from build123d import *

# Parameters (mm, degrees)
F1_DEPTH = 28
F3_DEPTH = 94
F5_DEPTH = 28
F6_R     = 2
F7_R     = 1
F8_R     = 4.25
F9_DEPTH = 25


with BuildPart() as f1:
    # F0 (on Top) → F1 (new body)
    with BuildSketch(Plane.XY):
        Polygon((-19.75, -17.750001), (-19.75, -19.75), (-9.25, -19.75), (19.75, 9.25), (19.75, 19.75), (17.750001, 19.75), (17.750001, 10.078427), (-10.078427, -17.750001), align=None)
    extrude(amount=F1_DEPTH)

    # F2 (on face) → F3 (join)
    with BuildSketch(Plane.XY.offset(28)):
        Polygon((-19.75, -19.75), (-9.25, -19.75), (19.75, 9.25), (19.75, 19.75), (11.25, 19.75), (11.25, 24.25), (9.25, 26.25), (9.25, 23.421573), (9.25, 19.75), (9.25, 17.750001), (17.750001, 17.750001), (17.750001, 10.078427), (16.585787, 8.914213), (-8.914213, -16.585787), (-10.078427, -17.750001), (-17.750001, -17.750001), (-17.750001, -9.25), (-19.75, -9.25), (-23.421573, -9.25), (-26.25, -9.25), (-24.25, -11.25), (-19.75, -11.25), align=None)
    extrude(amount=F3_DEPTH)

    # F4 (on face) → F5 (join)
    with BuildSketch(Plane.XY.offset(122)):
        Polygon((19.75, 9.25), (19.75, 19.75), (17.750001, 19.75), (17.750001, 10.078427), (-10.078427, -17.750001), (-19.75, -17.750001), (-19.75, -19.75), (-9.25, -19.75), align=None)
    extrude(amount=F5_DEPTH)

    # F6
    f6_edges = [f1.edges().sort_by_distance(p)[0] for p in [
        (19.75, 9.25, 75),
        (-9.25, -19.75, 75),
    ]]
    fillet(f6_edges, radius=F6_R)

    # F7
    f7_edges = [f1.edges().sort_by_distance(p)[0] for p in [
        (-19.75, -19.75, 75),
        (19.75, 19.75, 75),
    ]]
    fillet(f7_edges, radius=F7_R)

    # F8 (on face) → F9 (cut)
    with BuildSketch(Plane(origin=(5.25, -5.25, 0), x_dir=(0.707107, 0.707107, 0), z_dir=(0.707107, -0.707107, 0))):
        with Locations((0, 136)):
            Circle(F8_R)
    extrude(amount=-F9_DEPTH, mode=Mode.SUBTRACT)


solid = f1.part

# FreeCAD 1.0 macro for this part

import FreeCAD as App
import Part
import Sketcher

V = App.Vector


def edges_at(feature, points):
    """Names of the edges that pass closest to the given points."""
    edges = feature.Shape.Edges
    near = lambda p: min(range(len(edges)), key=lambda i: edges[i].distToShape(Part.Vertex(*p))[0])
    return sorted({f"Edge{near(p) + 1}" for p in points})

doc = App.newDocument("Part")
body = doc.addObject("PartDesign::Body", "Body")

# Sketch on XY plane
sketch1 = body.newObject("Sketcher::SketchObject", "Sketch")
sketch1.AttachmentSupport = (doc.getObject("XY_Plane"), [""])
sketch1.MapMode = "FlatFace"
sketch1.addGeometry(Part.LineSegment(V(-19.8, -17.8, 0), V(-19.8, -19.8, 0)), False)
sketch1.addGeometry(Part.LineSegment(V(-19.8, -19.8, 0), V(-9.2, -19.8, 0)), False)
sketch1.addGeometry(Part.LineSegment(V(-9.2, -19.8, 0), V(19.8, 9.2, 0)), False)
sketch1.addGeometry(Part.LineSegment(V(19.8, 9.2, 0), V(19.8, 19.8, 0)), False)
sketch1.addGeometry(Part.LineSegment(V(19.8, 19.8, 0), V(17.8, 19.8, 0)), False)
sketch1.addGeometry(Part.LineSegment(V(17.8, 19.8, 0), V(17.8, 10.1, 0)), False)
sketch1.addGeometry(Part.LineSegment(V(17.8, 10.1, 0), V(-10.1, -17.8, 0)), False)
sketch1.addGeometry(Part.LineSegment(V(-10.1, -17.8, 0), V(-19.8, -17.8, 0)), False)
sketch1.addConstraint(Sketcher.Constraint("Coincident", 0, 2, 1, 1))
sketch1.addConstraint(Sketcher.Constraint("Coincident", 1, 2, 2, 1))
sketch1.addConstraint(Sketcher.Constraint("Coincident", 2, 2, 3, 1))
sketch1.addConstraint(Sketcher.Constraint("Coincident", 3, 2, 4, 1))
sketch1.addConstraint(Sketcher.Constraint("Coincident", 4, 2, 5, 1))
sketch1.addConstraint(Sketcher.Constraint("Coincident", 5, 2, 6, 1))
sketch1.addConstraint(Sketcher.Constraint("Coincident", 6, 2, 7, 1))
sketch1.addConstraint(Sketcher.Constraint("Coincident", 7, 2, 0, 1))
sketch1.addConstraint(Sketcher.Constraint("Vertical", 0))
sketch1.addConstraint(Sketcher.Constraint("Horizontal", 1))
sketch1.addConstraint(Sketcher.Constraint("Vertical", 3))
sketch1.addConstraint(Sketcher.Constraint("Horizontal", 4))
sketch1.addConstraint(Sketcher.Constraint("Vertical", 5))
sketch1.addConstraint(Sketcher.Constraint("Horizontal", 7))
sketch1.addConstraint(Sketcher.Constraint("Symmetric", 0, 2, 3, 2, -1, 1))
sketch1.addConstraint(Sketcher.Constraint("Parallel", 2, 6))
sketch1.addConstraint(Sketcher.Constraint("Equal", 4, 0))
sketch1.addConstraint(Sketcher.Constraint("Equal", 1, 3))
sketch1.addConstraint(Sketcher.Constraint("Equal", 7, 5))
sketch1.addConstraint(Sketcher.Constraint("DistanceX", 4, 2, 4, 1, 1.999999))
sketch1.addConstraint(Sketcher.Constraint("DistanceX", 1, 1, 1, 2, 10.5))
sketch1.addConstraint(Sketcher.Constraint("DistanceX", 1, 2, 2, 2, 29.0))
sketch1.addConstraint(Sketcher.Constraint("Distance", 6, 39.35534))
pad1 = body.newObject("PartDesign::Pad", "Pad")
pad1.Profile = sketch1
pad1.Length = 28

# Sketch on XY plane
sketch2 = body.newObject("Sketcher::SketchObject", "Sketch001")
sketch2.AttachmentSupport = (doc.getObject("XY_Plane"), [""])
sketch2.MapMode = "FlatFace"
sketch2.AttachmentOffset = App.Placement(V(0, 0, 28), App.Rotation())
sketch2.addGeometry(Part.LineSegment(V(-19.8, -19.8, 0), V(-9.2, -19.8, 0)), False)
sketch2.addGeometry(Part.LineSegment(V(-9.2, -19.8, 0), V(19.8, 9.2, 0)), False)
sketch2.addGeometry(Part.LineSegment(V(19.8, 9.2, 0), V(19.8, 19.8, 0)), False)
sketch2.addGeometry(Part.LineSegment(V(19.8, 19.8, 0), V(11.2, 19.8, 0)), False)
sketch2.addGeometry(Part.LineSegment(V(11.2, 19.8, 0), V(11.2, 24.2, 0)), False)
sketch2.addGeometry(Part.LineSegment(V(11.2, 24.2, 0), V(9.2, 26.2, 0)), False)
sketch2.addGeometry(Part.LineSegment(V(9.2, 26.2, 0), V(9.2, 17.8, 0)), False)
sketch2.addGeometry(Part.LineSegment(V(9.2, 17.8, 0), V(17.8, 17.8, 0)), False)
sketch2.addGeometry(Part.LineSegment(V(17.8, 17.8, 0), V(17.8, 10.1, 0)), False)
sketch2.addGeometry(Part.LineSegment(V(17.8, 10.1, 0), V(-10.1, -17.8, 0)), False)
sketch2.addGeometry(Part.LineSegment(V(-10.1, -17.8, 0), V(-17.8, -17.8, 0)), False)
sketch2.addGeometry(Part.LineSegment(V(-17.8, -17.8, 0), V(-17.8, -9.2, 0)), False)
sketch2.addGeometry(Part.LineSegment(V(-17.8, -9.2, 0), V(-26.2, -9.2, 0)), False)
sketch2.addGeometry(Part.LineSegment(V(-26.2, -9.2, 0), V(-24.2, -11.2, 0)), False)
sketch2.addGeometry(Part.LineSegment(V(-24.2, -11.2, 0), V(-19.8, -11.2, 0)), False)
sketch2.addGeometry(Part.LineSegment(V(-19.8, -11.2, 0), V(-19.8, -19.8, 0)), False)
sketch2.addConstraint(Sketcher.Constraint("Coincident", 0, 2, 1, 1))
sketch2.addConstraint(Sketcher.Constraint("Coincident", 1, 2, 2, 1))
sketch2.addConstraint(Sketcher.Constraint("Coincident", 2, 2, 3, 1))
sketch2.addConstraint(Sketcher.Constraint("Coincident", 3, 2, 4, 1))
sketch2.addConstraint(Sketcher.Constraint("Coincident", 4, 2, 5, 1))
sketch2.addConstraint(Sketcher.Constraint("Coincident", 5, 2, 6, 1))
sketch2.addConstraint(Sketcher.Constraint("Coincident", 6, 2, 7, 1))
sketch2.addConstraint(Sketcher.Constraint("Coincident", 7, 2, 8, 1))
sketch2.addConstraint(Sketcher.Constraint("Coincident", 8, 2, 9, 1))
sketch2.addConstraint(Sketcher.Constraint("Coincident", 9, 2, 10, 1))
sketch2.addConstraint(Sketcher.Constraint("Coincident", 10, 2, 11, 1))
sketch2.addConstraint(Sketcher.Constraint("Coincident", 11, 2, 12, 1))
sketch2.addConstraint(Sketcher.Constraint("Coincident", 12, 2, 13, 1))
sketch2.addConstraint(Sketcher.Constraint("Coincident", 13, 2, 14, 1))
sketch2.addConstraint(Sketcher.Constraint("Coincident", 14, 2, 15, 1))
sketch2.addConstraint(Sketcher.Constraint("Coincident", 15, 2, 0, 1))
sketch2.addConstraint(Sketcher.Constraint("Horizontal", 0))
sketch2.addConstraint(Sketcher.Constraint("Vertical", 2))
sketch2.addConstraint(Sketcher.Constraint("Horizontal", 3))
sketch2.addConstraint(Sketcher.Constraint("Vertical", 4))
sketch2.addConstraint(Sketcher.Constraint("Vertical", 6))
sketch2.addConstraint(Sketcher.Constraint("Horizontal", 7))
sketch2.addConstraint(Sketcher.Constraint("Vertical", 8))
sketch2.addConstraint(Sketcher.Constraint("Horizontal", 10))
sketch2.addConstraint(Sketcher.Constraint("Vertical", 11))
sketch2.addConstraint(Sketcher.Constraint("Horizontal", 12))
sketch2.addConstraint(Sketcher.Constraint("Horizontal", 14))
sketch2.addConstraint(Sketcher.Constraint("Vertical", 15))
sketch2.addConstraint(Sketcher.Constraint("Symmetric", 7, 2, 10, 2, -1, 1))
sketch2.addConstraint(Sketcher.Constraint("Symmetric", 2, 2, 15, 2, -1, 1))
sketch2.addConstraint(Sketcher.Constraint("Perpendicular", 1, 5))
sketch2.addConstraint(Sketcher.Constraint("Perpendicular", 5, 9))
sketch2.addConstraint(Sketcher.Constraint("Perpendicular", 9, 13))
sketch2.addConstraint(Sketcher.Constraint("Equal", 3, 7))
sketch2.addConstraint(Sketcher.Constraint("Equal", 3, 12))
sketch2.addConstraint(Sketcher.Constraint("Equal", 0, 2))
sketch2.addConstraint(Sketcher.Constraint("Equal", 14, 4))
sketch2.addConstraint(Sketcher.Constraint("Equal", 12, 6))
sketch2.addConstraint(Sketcher.Constraint("Equal", 10, 8))
sketch2.addConstraint(Sketcher.Constraint("Equal", 7, 11))
sketch2.addConstraint(Sketcher.Constraint("Equal", 11, 15))
sketch2.addConstraint(Sketcher.Constraint("DistanceX", 0, 1, 0, 2, 10.5))
sketch2.addConstraint(Sketcher.Constraint("DistanceX", 3, 2, 3, 1, 8.5))
sketch2.addConstraint(Sketcher.Constraint("DistanceX", 14, 1, 14, 2, 4.5))
sketch2.addConstraint(Sketcher.Constraint("DistanceX", 0, 2, 1, 2, 29.0))
sketch2.addConstraint(Sketcher.Constraint("Distance", 9, 39.35534))
pad2 = body.newObject("PartDesign::Pad", "Pad001")
pad2.Profile = sketch2
pad2.Length = 94

# Sketch on XY plane
sketch3 = body.newObject("Sketcher::SketchObject", "Sketch002")
sketch3.AttachmentSupport = (doc.getObject("XY_Plane"), [""])
sketch3.MapMode = "FlatFace"
sketch3.AttachmentOffset = App.Placement(V(0, 0, 122), App.Rotation())
sketch3.addGeometry(Part.LineSegment(V(19.8, 9.2, 0), V(19.8, 19.8, 0)), False)
sketch3.addGeometry(Part.LineSegment(V(19.8, 19.8, 0), V(17.8, 19.8, 0)), False)
sketch3.addGeometry(Part.LineSegment(V(17.8, 19.8, 0), V(17.8, 10.1, 0)), False)
sketch3.addGeometry(Part.LineSegment(V(17.8, 10.1, 0), V(-10.1, -17.8, 0)), False)
sketch3.addGeometry(Part.LineSegment(V(-10.1, -17.8, 0), V(-19.8, -17.8, 0)), False)
sketch3.addGeometry(Part.LineSegment(V(-19.8, -17.8, 0), V(-19.8, -19.8, 0)), False)
sketch3.addGeometry(Part.LineSegment(V(-19.8, -19.8, 0), V(-9.2, -19.8, 0)), False)
sketch3.addGeometry(Part.LineSegment(V(-9.2, -19.8, 0), V(19.8, 9.2, 0)), False)
sketch3.addConstraint(Sketcher.Constraint("Coincident", 0, 2, 1, 1))
sketch3.addConstraint(Sketcher.Constraint("Coincident", 1, 2, 2, 1))
sketch3.addConstraint(Sketcher.Constraint("Coincident", 2, 2, 3, 1))
sketch3.addConstraint(Sketcher.Constraint("Coincident", 3, 2, 4, 1))
sketch3.addConstraint(Sketcher.Constraint("Coincident", 4, 2, 5, 1))
sketch3.addConstraint(Sketcher.Constraint("Coincident", 5, 2, 6, 1))
sketch3.addConstraint(Sketcher.Constraint("Coincident", 6, 2, 7, 1))
sketch3.addConstraint(Sketcher.Constraint("Coincident", 7, 2, 0, 1))
sketch3.addConstraint(Sketcher.Constraint("Vertical", 0))
sketch3.addConstraint(Sketcher.Constraint("Horizontal", 1))
sketch3.addConstraint(Sketcher.Constraint("Vertical", 2))
sketch3.addConstraint(Sketcher.Constraint("Horizontal", 4))
sketch3.addConstraint(Sketcher.Constraint("Vertical", 5))
sketch3.addConstraint(Sketcher.Constraint("Horizontal", 6))
sketch3.addConstraint(Sketcher.Constraint("Symmetric", 0, 2, 5, 2, -1, 1))
sketch3.addConstraint(Sketcher.Constraint("Parallel", 3, 7))
sketch3.addConstraint(Sketcher.Constraint("Equal", 6, 0))
sketch3.addConstraint(Sketcher.Constraint("Equal", 4, 2))
sketch3.addConstraint(Sketcher.Constraint("Equal", 1, 5))
sketch3.addConstraint(Sketcher.Constraint("DistanceX", 1, 2, 1, 1, 1.999999))
sketch3.addConstraint(Sketcher.Constraint("DistanceX", 6, 1, 6, 2, 10.5))
sketch3.addConstraint(Sketcher.Constraint("DistanceX", 6, 2, 2, 2, 27.000001))
sketch3.addConstraint(Sketcher.Constraint("Distance", 3, 39.35534))
pad3 = body.newObject("PartDesign::Pad", "Pad002")
pad3.Profile = sketch3
pad3.Length = 28
doc.recompute()

fillet = body.newObject("PartDesign::Fillet", "Fillet")
fillet.Base = (pad3, edges_at(pad3, [(19.75, 9.25, 75), (-9.25, -19.75, 75)]))
fillet.Radius = 2
doc.recompute()

fillet2 = body.newObject("PartDesign::Fillet", "Fillet001")
fillet2.Base = (fillet, edges_at(fillet, [(-19.75, -19.75, 75), (19.75, 19.75, 75)]))
fillet2.Radius = 1

# Sketch on an angled plane
sketch4 = body.newObject("Sketcher::SketchObject", "Sketch003")
sketch4.Placement = App.Placement(V(5.25, -5.25, 0), App.Rotation(V(0.707106781, 0.707106781, 0), V(0, 0, 0.999999999), V(0.707106781, -0.707106781, 0), "ZXY"))
sketch4.addGeometry(Part.Circle(V(0, 136, 0), V(0, 0, 1), 4.2), False)
sketch4.addConstraint(Sketcher.Constraint("PointOnObject", 0, 3, -2))
sketch4.addConstraint(Sketcher.Constraint("Diameter", 0, 8.5))
sketch4.addConstraint(Sketcher.Constraint("DistanceY", -1, 1, 0, 3, 136.0))
pocket1 = body.newObject("PartDesign::Pocket", "Pocket")
pocket1.Profile = sketch4
pocket1.Length = 25

doc.recompute()
